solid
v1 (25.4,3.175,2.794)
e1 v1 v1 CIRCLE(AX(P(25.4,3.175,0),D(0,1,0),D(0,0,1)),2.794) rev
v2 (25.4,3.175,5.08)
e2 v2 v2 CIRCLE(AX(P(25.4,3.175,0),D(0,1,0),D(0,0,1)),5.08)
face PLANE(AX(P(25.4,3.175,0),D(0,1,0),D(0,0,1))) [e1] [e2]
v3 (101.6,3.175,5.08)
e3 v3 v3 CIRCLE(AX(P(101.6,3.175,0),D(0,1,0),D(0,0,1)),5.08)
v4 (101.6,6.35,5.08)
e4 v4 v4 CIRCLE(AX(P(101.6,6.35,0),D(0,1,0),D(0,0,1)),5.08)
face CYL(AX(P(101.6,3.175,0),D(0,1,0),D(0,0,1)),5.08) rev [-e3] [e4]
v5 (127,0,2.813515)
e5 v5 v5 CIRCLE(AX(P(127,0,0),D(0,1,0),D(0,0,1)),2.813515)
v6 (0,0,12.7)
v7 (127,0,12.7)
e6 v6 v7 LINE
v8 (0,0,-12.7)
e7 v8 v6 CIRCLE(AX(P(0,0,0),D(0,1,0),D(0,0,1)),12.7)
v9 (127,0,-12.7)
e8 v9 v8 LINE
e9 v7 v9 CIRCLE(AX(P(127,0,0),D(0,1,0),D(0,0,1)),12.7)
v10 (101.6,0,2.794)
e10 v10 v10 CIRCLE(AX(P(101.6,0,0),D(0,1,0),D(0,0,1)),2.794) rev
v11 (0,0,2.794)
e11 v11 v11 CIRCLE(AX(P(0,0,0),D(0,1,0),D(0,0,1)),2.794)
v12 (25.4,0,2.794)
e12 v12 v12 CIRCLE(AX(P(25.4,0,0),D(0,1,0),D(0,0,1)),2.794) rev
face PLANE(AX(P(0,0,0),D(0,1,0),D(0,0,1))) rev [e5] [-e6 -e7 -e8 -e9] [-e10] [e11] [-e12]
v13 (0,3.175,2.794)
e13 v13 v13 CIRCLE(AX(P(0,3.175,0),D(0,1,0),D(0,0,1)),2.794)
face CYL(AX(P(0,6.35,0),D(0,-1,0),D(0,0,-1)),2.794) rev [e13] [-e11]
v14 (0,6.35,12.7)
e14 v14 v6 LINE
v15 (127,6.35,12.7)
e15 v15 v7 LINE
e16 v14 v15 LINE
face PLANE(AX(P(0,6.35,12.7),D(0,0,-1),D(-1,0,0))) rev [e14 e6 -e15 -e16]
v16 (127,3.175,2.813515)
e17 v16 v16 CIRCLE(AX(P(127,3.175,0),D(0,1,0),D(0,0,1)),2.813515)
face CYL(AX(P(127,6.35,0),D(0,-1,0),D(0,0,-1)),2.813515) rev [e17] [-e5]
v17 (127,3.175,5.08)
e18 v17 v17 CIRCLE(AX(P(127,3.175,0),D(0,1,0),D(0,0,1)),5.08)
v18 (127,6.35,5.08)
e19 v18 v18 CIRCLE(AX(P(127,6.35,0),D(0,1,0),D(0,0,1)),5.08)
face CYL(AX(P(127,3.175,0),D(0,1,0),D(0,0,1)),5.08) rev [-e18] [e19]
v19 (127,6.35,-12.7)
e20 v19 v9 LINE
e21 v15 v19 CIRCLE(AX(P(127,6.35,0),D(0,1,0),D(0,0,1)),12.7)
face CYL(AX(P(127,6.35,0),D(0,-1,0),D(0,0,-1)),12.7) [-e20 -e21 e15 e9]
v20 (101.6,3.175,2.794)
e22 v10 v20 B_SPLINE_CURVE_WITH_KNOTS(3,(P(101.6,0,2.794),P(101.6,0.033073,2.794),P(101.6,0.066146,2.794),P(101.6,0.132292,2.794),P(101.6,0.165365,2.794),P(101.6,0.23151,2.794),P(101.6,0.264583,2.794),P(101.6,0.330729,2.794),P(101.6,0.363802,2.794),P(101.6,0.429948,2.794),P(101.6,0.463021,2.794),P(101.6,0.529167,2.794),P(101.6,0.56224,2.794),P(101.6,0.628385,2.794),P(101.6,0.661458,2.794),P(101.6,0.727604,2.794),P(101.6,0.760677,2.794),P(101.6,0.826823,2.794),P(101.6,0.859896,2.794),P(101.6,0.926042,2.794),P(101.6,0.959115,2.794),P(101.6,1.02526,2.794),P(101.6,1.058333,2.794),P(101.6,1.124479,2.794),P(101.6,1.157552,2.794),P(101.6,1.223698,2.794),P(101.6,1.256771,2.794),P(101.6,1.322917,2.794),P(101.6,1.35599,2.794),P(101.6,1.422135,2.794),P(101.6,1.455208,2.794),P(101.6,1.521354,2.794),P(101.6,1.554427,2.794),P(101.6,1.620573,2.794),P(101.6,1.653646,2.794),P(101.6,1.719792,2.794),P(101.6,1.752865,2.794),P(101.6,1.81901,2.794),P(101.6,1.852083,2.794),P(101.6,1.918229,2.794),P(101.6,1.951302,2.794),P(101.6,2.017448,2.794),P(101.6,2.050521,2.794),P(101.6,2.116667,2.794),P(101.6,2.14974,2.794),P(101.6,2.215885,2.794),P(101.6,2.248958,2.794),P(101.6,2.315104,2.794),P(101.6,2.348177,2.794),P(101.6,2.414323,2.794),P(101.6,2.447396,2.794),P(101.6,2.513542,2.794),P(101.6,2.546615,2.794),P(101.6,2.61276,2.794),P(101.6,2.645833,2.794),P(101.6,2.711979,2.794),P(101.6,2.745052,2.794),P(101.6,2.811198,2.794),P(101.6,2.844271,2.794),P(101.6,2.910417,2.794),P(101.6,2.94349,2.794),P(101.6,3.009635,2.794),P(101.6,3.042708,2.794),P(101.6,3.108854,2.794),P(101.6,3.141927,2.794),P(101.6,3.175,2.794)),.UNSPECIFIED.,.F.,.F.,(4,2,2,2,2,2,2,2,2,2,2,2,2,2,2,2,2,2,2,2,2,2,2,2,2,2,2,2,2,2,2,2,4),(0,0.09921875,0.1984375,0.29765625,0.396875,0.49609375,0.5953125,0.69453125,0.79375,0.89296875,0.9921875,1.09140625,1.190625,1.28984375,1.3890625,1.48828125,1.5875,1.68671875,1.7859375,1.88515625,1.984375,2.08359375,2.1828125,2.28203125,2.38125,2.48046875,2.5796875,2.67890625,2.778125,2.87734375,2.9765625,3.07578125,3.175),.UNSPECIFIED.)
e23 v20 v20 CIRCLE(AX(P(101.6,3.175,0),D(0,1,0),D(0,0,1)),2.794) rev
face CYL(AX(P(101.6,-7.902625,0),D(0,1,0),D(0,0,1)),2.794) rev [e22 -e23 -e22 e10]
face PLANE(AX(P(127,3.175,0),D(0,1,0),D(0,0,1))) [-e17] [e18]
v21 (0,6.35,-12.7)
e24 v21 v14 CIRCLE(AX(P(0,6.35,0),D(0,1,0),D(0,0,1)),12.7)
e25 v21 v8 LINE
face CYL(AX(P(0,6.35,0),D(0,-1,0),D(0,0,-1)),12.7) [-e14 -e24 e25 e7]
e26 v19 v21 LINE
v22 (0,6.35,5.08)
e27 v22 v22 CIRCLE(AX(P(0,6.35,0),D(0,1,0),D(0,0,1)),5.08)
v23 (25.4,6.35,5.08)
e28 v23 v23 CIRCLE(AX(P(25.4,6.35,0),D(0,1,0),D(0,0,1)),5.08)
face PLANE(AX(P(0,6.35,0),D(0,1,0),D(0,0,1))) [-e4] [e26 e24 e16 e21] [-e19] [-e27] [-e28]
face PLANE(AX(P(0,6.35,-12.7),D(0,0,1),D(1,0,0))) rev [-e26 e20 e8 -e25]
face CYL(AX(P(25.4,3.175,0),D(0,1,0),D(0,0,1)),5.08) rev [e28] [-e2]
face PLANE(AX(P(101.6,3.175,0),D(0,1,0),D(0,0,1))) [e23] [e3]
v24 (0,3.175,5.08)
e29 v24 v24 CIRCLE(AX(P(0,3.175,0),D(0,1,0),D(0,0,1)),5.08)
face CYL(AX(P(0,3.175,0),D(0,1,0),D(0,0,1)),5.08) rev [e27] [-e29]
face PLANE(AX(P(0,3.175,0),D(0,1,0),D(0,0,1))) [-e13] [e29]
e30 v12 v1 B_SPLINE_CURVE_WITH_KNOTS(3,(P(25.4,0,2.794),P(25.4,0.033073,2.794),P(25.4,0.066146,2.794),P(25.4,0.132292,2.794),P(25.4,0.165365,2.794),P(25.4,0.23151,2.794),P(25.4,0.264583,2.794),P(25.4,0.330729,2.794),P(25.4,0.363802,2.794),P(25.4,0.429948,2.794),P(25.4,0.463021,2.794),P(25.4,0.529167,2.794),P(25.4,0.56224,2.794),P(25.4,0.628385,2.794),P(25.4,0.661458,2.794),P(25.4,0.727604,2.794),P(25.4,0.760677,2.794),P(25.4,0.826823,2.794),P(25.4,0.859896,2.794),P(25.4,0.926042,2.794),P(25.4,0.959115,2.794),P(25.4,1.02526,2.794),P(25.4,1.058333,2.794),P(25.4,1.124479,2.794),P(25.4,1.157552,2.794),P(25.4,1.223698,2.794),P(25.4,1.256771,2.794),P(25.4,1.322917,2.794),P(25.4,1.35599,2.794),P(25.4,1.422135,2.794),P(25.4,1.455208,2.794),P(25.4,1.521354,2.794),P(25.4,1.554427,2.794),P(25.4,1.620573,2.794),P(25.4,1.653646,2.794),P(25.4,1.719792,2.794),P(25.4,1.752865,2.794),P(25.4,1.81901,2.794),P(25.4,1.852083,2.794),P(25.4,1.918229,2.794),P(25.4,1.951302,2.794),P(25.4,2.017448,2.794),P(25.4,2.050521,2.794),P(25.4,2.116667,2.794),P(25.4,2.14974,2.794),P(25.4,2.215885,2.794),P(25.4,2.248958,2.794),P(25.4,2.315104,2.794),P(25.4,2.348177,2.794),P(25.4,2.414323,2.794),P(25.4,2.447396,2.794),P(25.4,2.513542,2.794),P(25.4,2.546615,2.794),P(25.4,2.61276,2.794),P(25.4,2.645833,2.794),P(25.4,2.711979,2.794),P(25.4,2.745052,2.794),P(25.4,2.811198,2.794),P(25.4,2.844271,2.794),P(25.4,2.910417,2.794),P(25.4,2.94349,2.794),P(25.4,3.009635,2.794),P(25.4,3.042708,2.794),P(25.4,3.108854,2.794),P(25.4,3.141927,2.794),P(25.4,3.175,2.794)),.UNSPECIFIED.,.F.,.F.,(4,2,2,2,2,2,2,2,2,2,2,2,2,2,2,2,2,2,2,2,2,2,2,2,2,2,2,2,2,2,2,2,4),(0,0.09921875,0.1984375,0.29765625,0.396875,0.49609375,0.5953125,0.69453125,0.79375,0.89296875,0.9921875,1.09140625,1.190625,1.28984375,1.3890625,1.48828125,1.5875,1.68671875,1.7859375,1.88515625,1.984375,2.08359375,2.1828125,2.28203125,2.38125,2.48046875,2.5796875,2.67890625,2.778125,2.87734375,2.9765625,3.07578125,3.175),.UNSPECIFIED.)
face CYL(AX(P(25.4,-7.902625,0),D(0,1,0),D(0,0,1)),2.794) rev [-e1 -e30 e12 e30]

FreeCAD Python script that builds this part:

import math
import FreeCAD as App
import Part
import Sketcher

V = App.Vector
Q = App.Units.Quantity

doc = App.newDocument("Part")
body = doc.addObject("PartDesign::Body", "Body")

# Sketch on XZ plane
sketch1 = doc.addObject("Sketcher::SketchObject", "Sketch")
body.addObject(sketch1)
sketch1.AttachmentSupport = (doc.XZ_Plane, [""])
sketch1.MapMode = "FlatFace"
sketch1.addGeometry(Part.LineSegment(V(127, -12.7, 0), V(0, -12.7, 0)), False)
sketch1.addGeometry(Part.ArcOfCircle(Part.Circle(V(0, 0, 0), V(0, 0, 1), 12.7), math.radians(90), math.radians(270)), False)
sketch1.addGeometry(Part.LineSegment(V(0, 12.7, 0), V(127, 12.7, 0)), False)
sketch1.addGeometry(Part.ArcOfCircle(Part.Circle(V(127, 0, 0), V(0, 0, 1), 12.7), math.radians(-90), math.radians(90)), False)
sketch1.addGeometry(Part.Circle(V(127, 0, 0), V(0, 0, 1), 2.8), False)
sketch1.addGeometry(Part.Circle(V(0, 0, 0), V(0, 0, 1), 2.8), False)
sketch1.addConstraint(Sketcher.Constraint("Tangent", 0, 2, 1, 2))
sketch1.addConstraint(Sketcher.Constraint("Tangent", 1, 1, 2, 1))
sketch1.addConstraint(Sketcher.Constraint("Tangent", 2, 2, 3, 2))
sketch1.addConstraint(Sketcher.Constraint("Tangent", 3, 1, 0, 1))
sketch1.addConstraint(Sketcher.Constraint("Horizontal", 0))
sketch1.addConstraint(Sketcher.Constraint("Horizontal", 2))
sketch1.addConstraint(Sketcher.Constraint("Coincident", 1, 3, -1, 1))
sketch1.addConstraint(Sketcher.Constraint("Coincident", 5, 3, -1, 1))
sketch1.addConstraint(Sketcher.Constraint("Coincident", 4, 3, 3, 3))
sketch1.addConstraint(Sketcher.Constraint("Radius", 1, Q("0.5 in")))
sketch1.addConstraint(Sketcher.Constraint("Diameter", 5, Q("0.22 in")))
sketch1.addConstraint(Sketcher.Constraint("DistanceX", 0, 2, 0, 1, Q("5 in")))
sketch1.addConstraint(Sketcher.Constraint("Diameter", 4, Q("5.62703 mm")))
pad1 = doc.addObject("PartDesign::Pad", "Pad")
body.addObject(pad1)
pad1.Profile = sketch1
pad1.Length = Q("0.25 in")
pad1.Reversed = True

# Sketch on XZ plane
sketch2 = doc.addObject("Sketcher::SketchObject", "Sketch001")
body.addObject(sketch2)
sketch2.AttachmentSupport = (doc.XZ_Plane, [""])
sketch2.MapMode = "FlatFace"
sketch2.AttachmentOffset = App.Placement(V(0, 0, -0.25 * 25.4), App.Rotation())
sketch2.addGeometry(Part.Circle(V(25.4, 0, 0), V(0, 0, 1), 2.8), False)
sketch2.addGeometry(Part.Circle(V(101.6, 0, 0), V(0, 0, 1), 2.8), False)
sketch2.addConstraint(Sketcher.Constraint("Equal", 0, 1))
sketch2.addConstraint(Sketcher.Constraint("PointOnObject", 0, 3, -1))
sketch2.addConstraint(Sketcher.Constraint("PointOnObject", 1, 3, -1))
sketch2.addConstraint(Sketcher.Constraint("Diameter", 0, Q("0.22 in")))
sketch2.addConstraint(Sketcher.Constraint("DistanceX", -1, 1, 0, 3, Q("1 in")))
sketch2.addConstraint(Sketcher.Constraint("DistanceX", -1, 1, 1, 3, Q("4 in")))
pocket1 = doc.addObject("PartDesign::Pocket", "Pocket")
body.addObject(pocket1)
pocket1.Profile = sketch2
pocket1.Length = Q("0.25 in")
pocket1.Reversed = True

# Sketch on XZ plane
sketch3 = doc.addObject("Sketcher::SketchObject", "Sketch002")
body.addObject(sketch3)
sketch3.AttachmentSupport = (doc.XZ_Plane, [""])
sketch3.MapMode = "FlatFace"
sketch3.AttachmentOffset = App.Placement(V(0, 0, -0.25 * 25.4), App.Rotation())
sketch3.addGeometry(Part.Circle(V(0, 0, 0), V(0, 0, 1), 5), False)
sketch3.addGeometry(Part.Circle(V(127, 0, 0), V(0, 0, 1), 5), False)
sketch3.addGeometry(Part.Circle(V(25, 0, 0), V(0, 0, 1), 5), False)
sketch3.addGeometry(Part.Circle(V(102, 0, 0), V(0, 0, 1), 5), False)
sketch3.addConstraint(Sketcher.Constraint("Coincident", 0, 3, -1, 1))
sketch3.addConstraint(Sketcher.Constraint("Equal", 0, 1))
sketch3.addConstraint(Sketcher.Constraint("Equal", 1, 2))
sketch3.addConstraint(Sketcher.Constraint("Equal", 2, 3))
sketch3.addConstraint(Sketcher.Constraint("PointOnObject", 1, 3, -1))
sketch3.addConstraint(Sketcher.Constraint("PointOnObject", 2, 3, -1))
sketch3.addConstraint(Sketcher.Constraint("PointOnObject", 3, 3, -1))
sketch3.addConstraint(Sketcher.Constraint("Diameter", 0, Q("0.4 in")))
sketch3.addConstraint(Sketcher.Constraint("DistanceX", -1, 1, 1, 3, Q("5 in")))
sketch3.addConstraint(Sketcher.Constraint("DistanceX", -1, 1, 2, 3, Q("1 in")))
sketch3.addConstraint(Sketcher.Constraint("DistanceX", -1, 1, 3, 3, Q("4 in")))
pocket2 = doc.addObject("PartDesign::Pocket", "Pocket001")
body.addObject(pocket2)
pocket2.Profile = sketch3
pocket2.Length = Q("0.125 in")
pocket2.Reversed = True

doc.recompute()
